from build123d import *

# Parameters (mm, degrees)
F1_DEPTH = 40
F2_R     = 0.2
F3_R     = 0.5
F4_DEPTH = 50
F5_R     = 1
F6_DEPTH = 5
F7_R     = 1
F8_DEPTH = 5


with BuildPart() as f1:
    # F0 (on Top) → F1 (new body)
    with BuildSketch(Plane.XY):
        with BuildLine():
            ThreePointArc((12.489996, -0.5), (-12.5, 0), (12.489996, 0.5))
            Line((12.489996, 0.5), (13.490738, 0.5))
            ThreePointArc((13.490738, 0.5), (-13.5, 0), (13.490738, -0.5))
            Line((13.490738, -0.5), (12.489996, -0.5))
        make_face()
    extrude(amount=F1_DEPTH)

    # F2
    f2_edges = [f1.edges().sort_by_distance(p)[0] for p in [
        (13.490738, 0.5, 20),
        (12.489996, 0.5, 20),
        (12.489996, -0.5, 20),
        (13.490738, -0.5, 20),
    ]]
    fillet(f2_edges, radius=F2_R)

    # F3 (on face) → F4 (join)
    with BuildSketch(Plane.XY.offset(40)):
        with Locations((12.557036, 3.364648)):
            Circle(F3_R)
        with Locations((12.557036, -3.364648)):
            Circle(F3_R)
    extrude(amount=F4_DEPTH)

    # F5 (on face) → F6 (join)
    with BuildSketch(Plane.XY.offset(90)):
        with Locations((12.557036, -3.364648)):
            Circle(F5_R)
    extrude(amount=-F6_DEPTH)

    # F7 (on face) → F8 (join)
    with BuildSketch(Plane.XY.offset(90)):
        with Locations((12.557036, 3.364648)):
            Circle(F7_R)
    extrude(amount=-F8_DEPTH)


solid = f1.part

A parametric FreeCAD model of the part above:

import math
import FreeCAD as App
import Part
import Sketcher
Q = App.Units.Quantity


def edges_at(feature, points):
    """Names of the edges that pass closest to the given points."""
    edges = feature.Shape.Edges
    near = lambda p: min(range(len(edges)), key=lambda i: edges[i].distToShape(Part.Vertex(*p))[0])
    return sorted({f"Edge{near(p) + 1}" for p in points})

doc = App.newDocument("Part")
body = doc.addObject("PartDesign::Body", "Body")

# Sketch on XY plane
sketch1 = body.newObject("Sketcher::SketchObject", "Sketch")
sketch1.AttachmentSupport = (doc.getObject("XY_Plane"), [""])
sketch1.MapMode = "FlatFace"
sketch1.addGeometry(Part.ArcOfCircle(Part.Circle(App.Vector(0, 0, 0), App.Vector(0, 0, 1), 12.5), math.radians(2), math.radians(358)), False)
sketch1.addGeometry(Part.LineSegment(App.Vector(12.5, 0.5, 0), App.Vector(13.5, 0.5, 0)), False)
sketch1.addGeometry(Part.ArcOfCircle(Part.Circle(App.Vector(0, 0, 0), App.Vector(0, 0, 1), 13.5), math.radians(2), math.radians(358)), False)
sketch1.addGeometry(Part.LineSegment(App.Vector(13.5, -0.5, 0), App.Vector(12.5, -0.5, 0)), False)
sketch1.addConstraint(Sketcher.Constraint("Coincident", 0, 1, 1, 1))
sketch1.addConstraint(Sketcher.Constraint("Coincident", 1, 2, 2, 1))
sketch1.addConstraint(Sketcher.Constraint("Coincident", 2, 2, 3, 1))
sketch1.addConstraint(Sketcher.Constraint("Coincident", 3, 2, 0, 2))
sketch1.addConstraint(Sketcher.Constraint("Horizontal", 1))
sketch1.addConstraint(Sketcher.Constraint("Horizontal", 3))
sketch1.addConstraint(Sketcher.Constraint("Coincident", 0, 3, -1, 1))
sketch1.addConstraint(Sketcher.Constraint("Coincident", 2, 3, -1, 1))
sketch1.addConstraint(Sketcher.Constraint("Vertical", 1, 2, 2, 2))
sketch1.addConstraint(Sketcher.Constraint("Radius", 0, Q("12.5 mm")))
sketch1.addConstraint(Sketcher.Constraint("Radius", 2, Q("13.5 mm")))
sketch1.addConstraint(Sketcher.Constraint("DistanceY", 2, 2, 1, 2, Q("1 mm")))
pad1 = body.newObject("PartDesign::Pad", "Pad")
pad1.Profile = sketch1
pad1.Length = 40
doc.recompute()

fillet = body.newObject("PartDesign::Fillet", "Fillet")
fillet.Base = (pad1, edges_at(pad1, [
    (13.491, 0.5, 20),
    (12.49, 0.5, 20),
    (12.49, -0.5, 20),
    (13.491, -0.5, 20),
]))
fillet.Radius = 0.2

# Sketch on XY plane
sketch2 = body.newObject("Sketcher::SketchObject", "Sketch001")
sketch2.AttachmentSupport = (doc.getObject("XY_Plane"), [""])
sketch2.MapMode = "FlatFace"
sketch2.AttachmentOffset = App.Placement(App.Vector(0, 0, 40), App.Rotation())
sketch2.addGeometry(Part.Circle(App.Vector(12.6, 3.4, 0), App.Vector(0, 0, 1), 0.5), False)
sketch2.addGeometry(Part.Circle(App.Vector(12.6, -3.4, 0), App.Vector(0, 0, 1), 0.5), False)
sketch2.addConstraint(Sketcher.Constraint("Equal", 0, 1))
sketch2.addConstraint(Sketcher.Constraint("Symmetric", 0, 3, 1, 3, -1))
sketch2.addConstraint(Sketcher.Constraint("Diameter", 0, Q("1 mm")))
sketch2.addConstraint(Sketcher.Constraint("DistanceX", -1, 1, 0, 3, Q("12.557036 mm")))
sketch2.addConstraint(Sketcher.Constraint("DistanceY", -1, 1, 0, 3, Q("3.364648 mm")))
pad2 = body.newObject("PartDesign::Pad", "Pad001")
pad2.Profile = sketch2
pad2.Length = 50

# Sketch on XY plane
sketch3 = body.newObject("Sketcher::SketchObject", "Sketch002")
sketch3.AttachmentSupport = (doc.getObject("XY_Plane"), [""])
sketch3.MapMode = "FlatFace"
sketch3.AttachmentOffset = App.Placement(App.Vector(0, 0, 90), App.Rotation())
sketch3.addGeometry(Part.Circle(App.Vector(12.6, -3.4, 0), App.Vector(0, 0, 1), 1), False)
sketch3.addConstraint(Sketcher.Constraint("Diameter", 0, Q("2 mm")))
sketch3.addConstraint(Sketcher.Constraint("DistanceX", -1, 1, 0, 3, Q("12.557036 mm")))
sketch3.addConstraint(Sketcher.Constraint("DistanceY", 0, 3, -1, 1, Q("3.364648 mm")))
pad3 = body.newObject("PartDesign::Pad", "Pad002")
pad3.Profile = sketch3
pad3.Length = 5
pad3.Reversed = True

# Sketch on XY plane
sketch4 = body.newObject("Sketcher::SketchObject", "Sketch003")
sketch4.AttachmentSupport = (doc.getObject("XY_Plane"), [""])
sketch4.MapMode = "FlatFace"
sketch4.AttachmentOffset = App.Placement(App.Vector(0, 0, 90), App.Rotation())
sketch4.addGeometry(Part.Circle(App.Vector(12.6, 3.4, 0), App.Vector(0, 0, 1), 1), False)
sketch4.addConstraint(Sketcher.Constraint("Diameter", 0, Q("2 mm")))
sketch4.addConstraint(Sketcher.Constraint("DistanceX", -1, 1, 0, 3, Q("12.557036 mm")))
sketch4.addConstraint(Sketcher.Constraint("DistanceY", -1, 1, 0, 3, Q("3.364648 mm")))
pad4 = body.newObject("PartDesign::Pad", "Pad003")
pad4.Profile = sketch4
pad4.Length = 5
pad4.Reversed = True

doc.recompute()
